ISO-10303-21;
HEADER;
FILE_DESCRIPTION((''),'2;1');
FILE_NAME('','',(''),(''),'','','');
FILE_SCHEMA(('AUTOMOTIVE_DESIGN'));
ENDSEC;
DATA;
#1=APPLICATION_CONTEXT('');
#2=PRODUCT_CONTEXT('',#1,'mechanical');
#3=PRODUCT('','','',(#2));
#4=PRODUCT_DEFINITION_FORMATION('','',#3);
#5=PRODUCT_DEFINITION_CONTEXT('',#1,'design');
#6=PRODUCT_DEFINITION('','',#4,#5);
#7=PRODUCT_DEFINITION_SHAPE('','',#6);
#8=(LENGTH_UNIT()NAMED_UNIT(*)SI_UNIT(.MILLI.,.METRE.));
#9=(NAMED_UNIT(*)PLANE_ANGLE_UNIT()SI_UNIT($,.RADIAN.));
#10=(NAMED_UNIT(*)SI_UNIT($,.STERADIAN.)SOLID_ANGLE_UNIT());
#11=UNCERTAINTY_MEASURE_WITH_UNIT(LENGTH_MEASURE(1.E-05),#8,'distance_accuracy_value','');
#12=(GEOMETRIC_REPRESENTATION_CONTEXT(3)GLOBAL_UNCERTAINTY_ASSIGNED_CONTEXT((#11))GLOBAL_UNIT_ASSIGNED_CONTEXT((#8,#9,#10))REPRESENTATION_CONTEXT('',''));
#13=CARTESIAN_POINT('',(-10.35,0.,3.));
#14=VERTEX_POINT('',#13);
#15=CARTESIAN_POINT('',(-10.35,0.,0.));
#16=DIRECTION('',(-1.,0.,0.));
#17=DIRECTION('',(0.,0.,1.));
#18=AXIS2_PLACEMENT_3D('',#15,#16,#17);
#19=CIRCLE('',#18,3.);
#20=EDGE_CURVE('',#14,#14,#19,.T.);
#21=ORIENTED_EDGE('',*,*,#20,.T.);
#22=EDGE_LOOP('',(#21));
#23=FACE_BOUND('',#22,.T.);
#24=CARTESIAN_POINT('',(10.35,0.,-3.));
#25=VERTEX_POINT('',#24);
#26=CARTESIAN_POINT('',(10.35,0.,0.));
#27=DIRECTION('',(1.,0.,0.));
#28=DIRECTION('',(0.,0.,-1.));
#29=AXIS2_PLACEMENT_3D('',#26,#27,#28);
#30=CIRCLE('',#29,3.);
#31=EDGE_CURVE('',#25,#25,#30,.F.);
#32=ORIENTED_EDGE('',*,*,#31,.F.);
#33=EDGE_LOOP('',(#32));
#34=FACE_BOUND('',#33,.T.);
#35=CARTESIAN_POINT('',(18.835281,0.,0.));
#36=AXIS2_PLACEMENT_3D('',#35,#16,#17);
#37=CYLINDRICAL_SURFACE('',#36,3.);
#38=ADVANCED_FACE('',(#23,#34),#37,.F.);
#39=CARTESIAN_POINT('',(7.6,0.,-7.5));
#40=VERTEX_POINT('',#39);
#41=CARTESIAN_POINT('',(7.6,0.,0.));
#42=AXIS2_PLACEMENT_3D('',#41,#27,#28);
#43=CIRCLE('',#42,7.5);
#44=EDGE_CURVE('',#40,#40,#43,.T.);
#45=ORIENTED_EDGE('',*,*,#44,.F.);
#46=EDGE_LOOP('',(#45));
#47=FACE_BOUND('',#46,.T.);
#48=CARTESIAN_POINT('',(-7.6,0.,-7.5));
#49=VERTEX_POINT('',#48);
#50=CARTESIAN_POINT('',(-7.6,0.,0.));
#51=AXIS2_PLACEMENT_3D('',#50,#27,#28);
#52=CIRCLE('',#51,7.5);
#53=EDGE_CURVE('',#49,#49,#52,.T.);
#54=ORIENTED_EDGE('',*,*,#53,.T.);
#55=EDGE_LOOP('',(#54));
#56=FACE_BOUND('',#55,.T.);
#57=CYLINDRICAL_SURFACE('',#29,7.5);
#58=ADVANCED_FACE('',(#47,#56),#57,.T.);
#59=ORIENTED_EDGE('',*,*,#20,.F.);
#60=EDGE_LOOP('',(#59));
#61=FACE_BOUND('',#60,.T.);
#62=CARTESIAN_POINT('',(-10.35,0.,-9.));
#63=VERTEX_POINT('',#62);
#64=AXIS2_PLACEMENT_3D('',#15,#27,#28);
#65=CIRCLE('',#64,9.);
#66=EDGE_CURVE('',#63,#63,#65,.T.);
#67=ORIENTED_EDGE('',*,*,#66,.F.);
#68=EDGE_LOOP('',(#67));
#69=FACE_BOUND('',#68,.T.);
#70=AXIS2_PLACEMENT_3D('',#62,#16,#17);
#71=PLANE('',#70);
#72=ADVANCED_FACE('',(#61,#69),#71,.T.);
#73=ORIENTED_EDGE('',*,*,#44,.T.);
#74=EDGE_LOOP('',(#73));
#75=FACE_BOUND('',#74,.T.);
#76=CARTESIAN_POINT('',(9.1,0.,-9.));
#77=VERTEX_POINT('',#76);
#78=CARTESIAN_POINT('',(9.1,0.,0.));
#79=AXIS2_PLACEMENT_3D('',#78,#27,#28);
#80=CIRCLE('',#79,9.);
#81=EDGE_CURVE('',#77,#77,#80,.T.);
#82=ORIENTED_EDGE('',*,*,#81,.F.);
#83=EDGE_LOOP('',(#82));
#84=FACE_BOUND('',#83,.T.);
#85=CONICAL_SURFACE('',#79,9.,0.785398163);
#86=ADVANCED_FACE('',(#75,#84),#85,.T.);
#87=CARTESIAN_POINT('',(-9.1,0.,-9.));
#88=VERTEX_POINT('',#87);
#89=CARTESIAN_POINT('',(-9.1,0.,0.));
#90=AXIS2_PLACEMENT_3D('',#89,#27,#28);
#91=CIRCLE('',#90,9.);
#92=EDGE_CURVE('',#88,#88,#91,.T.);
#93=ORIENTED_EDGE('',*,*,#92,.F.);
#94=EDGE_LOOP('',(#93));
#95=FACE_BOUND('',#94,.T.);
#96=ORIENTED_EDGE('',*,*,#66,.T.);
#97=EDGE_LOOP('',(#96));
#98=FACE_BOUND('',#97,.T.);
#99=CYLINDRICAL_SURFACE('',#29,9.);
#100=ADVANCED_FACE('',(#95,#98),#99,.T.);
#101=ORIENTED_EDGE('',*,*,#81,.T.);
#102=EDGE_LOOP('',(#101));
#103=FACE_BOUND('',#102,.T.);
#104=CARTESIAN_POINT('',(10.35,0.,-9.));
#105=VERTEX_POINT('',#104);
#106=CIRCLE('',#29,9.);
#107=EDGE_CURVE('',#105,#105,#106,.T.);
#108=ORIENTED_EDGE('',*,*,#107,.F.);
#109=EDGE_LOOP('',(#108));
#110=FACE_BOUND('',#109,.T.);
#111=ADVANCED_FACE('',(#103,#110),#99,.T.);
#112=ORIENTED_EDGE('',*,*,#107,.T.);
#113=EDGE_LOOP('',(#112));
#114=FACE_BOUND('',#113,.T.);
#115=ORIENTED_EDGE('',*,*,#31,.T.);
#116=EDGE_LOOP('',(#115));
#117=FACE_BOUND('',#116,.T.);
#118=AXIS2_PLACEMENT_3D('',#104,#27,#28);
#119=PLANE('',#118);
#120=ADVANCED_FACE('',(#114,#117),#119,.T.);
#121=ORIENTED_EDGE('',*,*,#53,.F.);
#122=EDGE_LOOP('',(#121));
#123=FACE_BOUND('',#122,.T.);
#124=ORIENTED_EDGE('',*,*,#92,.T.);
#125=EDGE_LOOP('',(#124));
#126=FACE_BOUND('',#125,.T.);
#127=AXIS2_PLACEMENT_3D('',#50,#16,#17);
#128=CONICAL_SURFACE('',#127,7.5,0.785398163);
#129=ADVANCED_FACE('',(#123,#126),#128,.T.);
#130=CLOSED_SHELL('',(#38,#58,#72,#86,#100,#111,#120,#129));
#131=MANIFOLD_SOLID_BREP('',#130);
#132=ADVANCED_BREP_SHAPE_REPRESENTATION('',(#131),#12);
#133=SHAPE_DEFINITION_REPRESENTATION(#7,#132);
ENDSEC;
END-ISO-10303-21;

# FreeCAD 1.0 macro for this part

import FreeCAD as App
import Part
import Sketcher
from FreeCAD import Vector

doc = App.newDocument("Part")
body = doc.addObject("PartDesign::Body", "Body")

sketch1 = body.newObject("Sketcher::SketchObject", "Sketch")
sketch1.AttachmentSupport = (doc.getObject("XZ_Plane"), [""])
sketch1.MapMode = "FlatFace"
sketch1.addGeometry([
    Part.LineSegment(Vector(-9.1, -9, 0), Vector(-10.3, -9, 0)),
    Part.LineSegment(Vector(-10.3, -9, 0), Vector(-10.3, 0, 0)),
    Part.LineSegment(Vector(-10.3, 0, 0), Vector(10.3, 0, 0)),
    Part.LineSegment(Vector(10.3, 0, 0), Vector(10.3, -9, 0)),
    Part.LineSegment(Vector(10.3, -9, 0), Vector(9.1, -9, 0)),
    Part.LineSegment(Vector(9.1, -9, 0), Vector(7.6, -7.5, 0)),
    Part.LineSegment(Vector(7.6, -7.5, 0), Vector(-7.6, -7.5, 0)),
    Part.LineSegment(Vector(-7.6, -7.5, 0), Vector(-9.1, -9, 0)),
], False)
sketch1.addConstraint([
    Sketcher.Constraint("Coincident", 0, 2, 1, 1),
    Sketcher.Constraint("Coincident", 1, 2, 2, 1),
    Sketcher.Constraint("Coincident", 2, 2, 3, 1),
    Sketcher.Constraint("Coincident", 3, 2, 4, 1),
    Sketcher.Constraint("Coincident", 4, 2, 5, 1),
    Sketcher.Constraint("Coincident", 5, 2, 6, 1),
    Sketcher.Constraint("Coincident", 6, 2, 7, 1),
    Sketcher.Constraint("Coincident", 7, 2, 0, 1),
    Sketcher.Constraint("Horizontal", 0),
    Sketcher.Constraint("Vertical", 1),
    Sketcher.Constraint("Horizontal", 2),
    Sketcher.Constraint("Vertical", 3),
    Sketcher.Constraint("Horizontal", 4),
    Sketcher.Constraint("Horizontal", 6),
    Sketcher.Constraint("Symmetric", 1, 2, 2, 2, -1, 1),
    Sketcher.Constraint("Symmetric", 4, 2, 7, 2, -2),
    Sketcher.Constraint("Perpendicular", 5, 7),
    Sketcher.Constraint("Equal", 5, 7),
    Sketcher.Constraint("DistanceY", 1, 1, 1, 2, 9.0),
    Sketcher.Constraint("DistanceX", 2, 1, 2, 2, 20.7),
    Sketcher.Constraint("DistanceX", 6, 2, 6, 1, 15.2),
    Sketcher.Constraint("DistanceX", 0, 2, 0, 1, 1.25),
])
revolution = body.newObject("PartDesign::Revolution", "Revolution")
revolution.Profile = sketch1
revolution.ReferenceAxis = (sketch1, ["H_Axis"])
revolution.Angle = 360

sketch2 = body.newObject("Sketcher::SketchObject", "Sketch001")
sketch2.AttachmentSupport = (doc.getObject("YZ_Plane"), [""])
sketch2.MapMode = "FlatFace"
sketch2.AttachmentOffset = App.Placement(Vector(0, 0, -10.35), App.Rotation())
sketch2.addGeometry(Part.Circle(Vector(0, 0, 0), Vector(0, 0, 1), 3), False)
sketch2.addConstraint([
    Sketcher.Constraint("Coincident", 0, 3, -1, 1),
    Sketcher.Constraint("Diameter", 0, 6.0),
])
pocket1 = body.newObject("PartDesign::Pocket", "Pocket")
pocket1.Profile = sketch2
pocket1.Length = 20.7
pocket1.Reversed = True

doc.recompute()
